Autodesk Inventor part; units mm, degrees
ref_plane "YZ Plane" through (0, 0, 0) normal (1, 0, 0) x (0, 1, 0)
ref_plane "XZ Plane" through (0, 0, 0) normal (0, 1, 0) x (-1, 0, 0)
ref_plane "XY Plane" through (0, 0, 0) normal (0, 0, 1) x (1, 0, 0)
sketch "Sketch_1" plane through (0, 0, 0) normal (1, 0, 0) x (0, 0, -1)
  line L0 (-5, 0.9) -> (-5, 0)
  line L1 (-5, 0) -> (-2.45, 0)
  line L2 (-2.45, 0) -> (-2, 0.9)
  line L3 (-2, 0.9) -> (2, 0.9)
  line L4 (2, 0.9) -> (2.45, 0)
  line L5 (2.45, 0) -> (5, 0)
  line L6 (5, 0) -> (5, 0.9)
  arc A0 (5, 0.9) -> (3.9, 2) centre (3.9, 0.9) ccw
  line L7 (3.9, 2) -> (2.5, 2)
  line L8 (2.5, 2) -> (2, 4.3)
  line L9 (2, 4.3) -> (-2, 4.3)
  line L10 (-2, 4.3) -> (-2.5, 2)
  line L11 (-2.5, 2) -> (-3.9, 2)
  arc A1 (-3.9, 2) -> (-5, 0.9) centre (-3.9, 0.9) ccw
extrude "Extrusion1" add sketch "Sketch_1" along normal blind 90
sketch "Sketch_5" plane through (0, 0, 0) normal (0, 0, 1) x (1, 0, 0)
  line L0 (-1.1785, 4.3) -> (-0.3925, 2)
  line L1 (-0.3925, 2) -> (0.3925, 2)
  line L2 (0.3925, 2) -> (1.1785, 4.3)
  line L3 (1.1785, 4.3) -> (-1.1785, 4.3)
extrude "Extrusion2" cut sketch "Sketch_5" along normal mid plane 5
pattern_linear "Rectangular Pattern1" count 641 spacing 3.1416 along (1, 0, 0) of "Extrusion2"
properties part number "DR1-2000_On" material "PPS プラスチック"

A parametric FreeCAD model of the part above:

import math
import FreeCAD as App
import Part
import Sketcher
from FreeCAD import Vector

doc = App.newDocument("Part")
body = doc.addObject("PartDesign::Body", "Body")

# Sketch on YZ plane
sketch1 = body.newObject("Sketcher::SketchObject", "Sketch")
sketch1.AttachmentSupport = (doc.getObject("YZ_Plane"), [""])
sketch1.MapMode = "FlatFace"
sketch1.addGeometry([
    Part.ArcOfCircle(Part.Circle(Vector(0.9, 3.9, 0), Vector(0, 0, 1), 1.1), math.radians(0), math.radians(90)),  # 0
    Part.LineSegment(Vector(0.9, 5, 0), Vector(0, 5, 0)),  # 1
    Part.LineSegment(Vector(0, 5, 0), Vector(0, 2.45, 0)),  # 2
    Part.LineSegment(Vector(0, 2.45, 0), Vector(0.9, 2, 0)),  # 3
    Part.LineSegment(Vector(0.9, 2, 0), Vector(0.9, -2, 0)),  # 4
    Part.LineSegment(Vector(0.9, -2, 0), Vector(0, -2.45, 0)),  # 5
    Part.LineSegment(Vector(0, -2.45, 0), Vector(0, -5, 0)),  # 6
    Part.LineSegment(Vector(0, -5, 0), Vector(0.9, -5, 0)),  # 7
    Part.ArcOfCircle(Part.Circle(Vector(0.9, -3.9, 0), Vector(0, 0, 1), 1.1), math.radians(-90), math.radians(0)),  # 8
    Part.LineSegment(Vector(2, -3.9, 0), Vector(2, -2.5, 0)),  # 9
    Part.LineSegment(Vector(2, -2.5, 0), Vector(4.3, -2, 0)),  # 10
    Part.LineSegment(Vector(4.3, -2, 0), Vector(4.3, 2, 0)),  # 11
    Part.LineSegment(Vector(4.3, 2, 0), Vector(2, 2.5, 0)),  # 12
    Part.LineSegment(Vector(2, 2.5, 0), Vector(2, 3.9, 0)),  # 13
], False)
sketch1.addConstraint([
    Sketcher.Constraint("Tangent", 0, 2, 1, 1),
    Sketcher.Constraint("Coincident", 1, 2, 2, 1),
    Sketcher.Constraint("Coincident", 2, 2, 3, 1),
    Sketcher.Constraint("Coincident", 3, 2, 4, 1),
    Sketcher.Constraint("Coincident", 4, 2, 5, 1),
    Sketcher.Constraint("Coincident", 5, 2, 6, 1),
    Sketcher.Constraint("Coincident", 6, 2, 7, 1),
    Sketcher.Constraint("Tangent", 7, 2, 8, 1),
    Sketcher.Constraint("Tangent", 8, 2, 9, 1),
    Sketcher.Constraint("Coincident", 9, 2, 10, 1),
    Sketcher.Constraint("Coincident", 10, 2, 11, 1),
    Sketcher.Constraint("Coincident", 11, 2, 12, 1),
    Sketcher.Constraint("Coincident", 12, 2, 13, 1),
    Sketcher.Constraint("Tangent", 13, 2, 0, 1),
    Sketcher.Constraint("Horizontal", 1),
    Sketcher.Constraint("Vertical", 2),
    Sketcher.Constraint("Vertical", 4),
    Sketcher.Constraint("Vertical", 6),
    Sketcher.Constraint("Horizontal", 7),
    Sketcher.Constraint("Vertical", 9),
    Sketcher.Constraint("Vertical", 11),
    Sketcher.Constraint("Vertical", 13),
    Sketcher.Constraint("Equal", 0, 8),
    Sketcher.Constraint("Symmetric", 2, 2, 5, 2, -1, 1),
    Sketcher.Constraint("Symmetric", 0, 3, 8, 3, -1),
    Sketcher.Constraint("PointOnObject", 1, 2, -2),
    Sketcher.Constraint("Horizontal", 4, 2, 10, 2),
    Sketcher.Constraint("Horizontal", 3, 2, 11, 2),
    Sketcher.Constraint("Vertical", 0, 2, 3, 2),
    Sketcher.Constraint("Equal", 9, 13),
    Sketcher.Constraint("Equal", 3, 5),
    Sketcher.Constraint("Radius", 0, 1.1),
    Sketcher.Constraint("DistanceY", 4, 2, 4, 1, 4.0),
    Sketcher.Constraint("DistanceX", 1, 2, 1, 1, 0.9),
    Sketcher.Constraint("DistanceY", 9, 1, 9, 2, 1.4),
    Sketcher.Constraint("DistanceY", -1, 1, 0, 2, 5.0),
    Sketcher.Constraint("DistanceY", 2, 2, 2, 1, 2.55),
    Sketcher.Constraint("DistanceX", -1, 1, 10, 2, 4.3),
])
pad1 = body.newObject("PartDesign::Pad", "Pad")
pad1.Profile = sketch1
pad1.Length = 90

# Sketch on XY plane
sketch2 = body.newObject("Sketcher::SketchObject", "Sketch001")
sketch2.AttachmentSupport = (doc.getObject("XY_Plane"), [""])
sketch2.MapMode = "FlatFace"
sketch2.addGeometry([
    Part.LineSegment(Vector(1.1785, 4.3, 0), Vector(-1.1785, 4.3, 0)),
    Part.LineSegment(Vector(-1.1785, 4.3, 0), Vector(-0.3925, 2, 0)),
    Part.LineSegment(Vector(-0.3925, 2, 0), Vector(0.3925, 2, 0)),
    Part.LineSegment(Vector(0.3925, 2, 0), Vector(1.1785, 4.3, 0)),
], False)
sketch2.addConstraint([
    Sketcher.Constraint("Coincident", 0, 2, 1, 1),
    Sketcher.Constraint("Coincident", 1, 2, 2, 1),
    Sketcher.Constraint("Coincident", 2, 2, 3, 1),
    Sketcher.Constraint("Coincident", 3, 2, 0, 1),
    Sketcher.Constraint("Horizontal", 0),
    Sketcher.Constraint("Horizontal", 2),
    Sketcher.Constraint("Equal", 1, 3),
    Sketcher.Constraint("DistanceY", -1, 1, 1, 2, 2.0),
    Sketcher.Constraint("DistanceY", -1, 1, 0, 2, 4.3),
    Sketcher.Constraint("DistanceX", 0, 2, 0, 1, 2.357),
    Sketcher.Constraint("DistanceX", 2, 1, 2, 2, 0.785),
    Sketcher.Constraint("DistanceX", 0, 2, -1, 1, 1.1785),
])
pocket1 = body.newObject("PartDesign::Pocket", "Pocket")
pocket1.Profile = sketch2
pocket1.Length = 5
pocket1.Midplane = True
doc.recompute()

linearpattern = body.newObject("PartDesign::LinearPattern", "LinearPattern")
linearpattern.Originals = [pocket1]
linearpattern.Direction = (doc.getObject("X_Axis"), [""])
linearpattern.Mode = "offset"
linearpattern.Offset = 3.1416
linearpattern.Occurrences = 401
body.Tip = linearpattern

doc.recompute()
